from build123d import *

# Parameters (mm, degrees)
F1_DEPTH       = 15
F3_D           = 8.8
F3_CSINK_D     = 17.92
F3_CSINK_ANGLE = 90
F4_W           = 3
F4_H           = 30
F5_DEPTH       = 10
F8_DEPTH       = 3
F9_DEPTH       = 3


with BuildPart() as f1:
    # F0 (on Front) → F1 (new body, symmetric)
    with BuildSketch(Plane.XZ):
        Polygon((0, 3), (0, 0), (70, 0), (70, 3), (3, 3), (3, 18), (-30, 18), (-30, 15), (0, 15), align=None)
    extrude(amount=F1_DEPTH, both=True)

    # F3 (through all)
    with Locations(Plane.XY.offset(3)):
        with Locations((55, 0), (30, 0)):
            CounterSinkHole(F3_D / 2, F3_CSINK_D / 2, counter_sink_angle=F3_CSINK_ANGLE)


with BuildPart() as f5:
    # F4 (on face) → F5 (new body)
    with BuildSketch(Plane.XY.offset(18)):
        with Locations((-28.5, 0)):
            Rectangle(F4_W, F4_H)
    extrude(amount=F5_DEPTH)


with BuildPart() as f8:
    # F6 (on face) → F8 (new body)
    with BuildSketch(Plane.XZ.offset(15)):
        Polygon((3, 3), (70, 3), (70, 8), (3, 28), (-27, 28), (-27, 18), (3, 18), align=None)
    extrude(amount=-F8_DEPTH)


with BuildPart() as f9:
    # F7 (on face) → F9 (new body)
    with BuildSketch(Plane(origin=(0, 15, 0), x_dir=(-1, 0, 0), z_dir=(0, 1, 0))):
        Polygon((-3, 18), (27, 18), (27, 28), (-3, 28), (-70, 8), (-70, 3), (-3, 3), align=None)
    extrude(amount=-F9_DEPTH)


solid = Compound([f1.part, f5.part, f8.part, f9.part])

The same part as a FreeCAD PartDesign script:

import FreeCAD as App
import Part
import Sketcher
Q = App.Units.Quantity

doc = App.newDocument("Part")
params = doc.addObject("Spreadsheet::Sheet", "Params")
for row, (alias, value) in enumerate([
    ("sketch1_width", "70 mm"),
    ("sketch1_width2", "67 mm"),
    ("sketch1_width3", "33 mm"),
    ("sketch1_height", "3 mm"),
    ("sketch1_height2", "15 mm"),
    ("pad1_length", "30 mm"),
    ("sketch2_diameter", "8.8 mm"),
    ("hole_diameter", "8.8 mm"),
    ("hole_csink_diameter", "17.92 mm"),
    ("sketch3_width", "3 mm"),
    ("sketch3_height", "30 mm"),
    ("pad2_length", "10 mm"),
    ("sketch4_width", "67 mm"),
    ("sketch4_width2", "30 mm"),
    ("sketch4_height", "5 mm"),
    ("sketch4_height2", "10 mm"),
    ("sketch4_height3", "15 mm"),
    ("pad3_length", "3 mm"),
    ("sketch5_width", "30 mm"),
    ("sketch5_width2", "67 mm"),
    ("sketch5_height", "10 mm"),
    ("sketch5_height2", "5 mm"),
    ("sketch5_height3", "15 mm"),
    ("pad4_length", "3 mm"),
], start=1):
    params.set(f"A{row}", alias)
    params.set(f"B{row}", "=" + value)
    params.setAlias(f"B{row}", alias)

body = doc.addObject("PartDesign::Body", "Body")

# Sketch on XZ plane
sketch1 = body.newObject("Sketcher::SketchObject", "Sketch")
sketch1.AttachmentSupport = (doc.getObject("XZ_Plane"), [""])
sketch1.MapMode = "FlatFace"
sketch1.addGeometry(Part.LineSegment(App.Vector(0, 0, 0), App.Vector(70, 0, 0)), False)
sketch1.addGeometry(Part.LineSegment(App.Vector(70, 0, 0), App.Vector(70, 3, 0)), False)
sketch1.addGeometry(Part.LineSegment(App.Vector(70, 3, 0), App.Vector(3, 3, 0)), False)
sketch1.addGeometry(Part.LineSegment(App.Vector(3, 3, 0), App.Vector(3, 18, 0)), False)
sketch1.addGeometry(Part.LineSegment(App.Vector(3, 18, 0), App.Vector(-30, 18, 0)), False)
sketch1.addGeometry(Part.LineSegment(App.Vector(-30, 18, 0), App.Vector(-30, 15, 0)), False)
sketch1.addGeometry(Part.LineSegment(App.Vector(-30, 15, 0), App.Vector(0, 15, 0)), False)
sketch1.addGeometry(Part.LineSegment(App.Vector(0, 15, 0), App.Vector(0, 0, 0)), False)
sketch1.addConstraint(Sketcher.Constraint("Coincident", 0, 2, 1, 1))
sketch1.addConstraint(Sketcher.Constraint("Coincident", 1, 2, 2, 1))
sketch1.addConstraint(Sketcher.Constraint("Coincident", 2, 2, 3, 1))
sketch1.addConstraint(Sketcher.Constraint("Coincident", 3, 2, 4, 1))
sketch1.addConstraint(Sketcher.Constraint("Coincident", 4, 2, 5, 1))
sketch1.addConstraint(Sketcher.Constraint("Coincident", 5, 2, 6, 1))
sketch1.addConstraint(Sketcher.Constraint("Coincident", 6, 2, 7, 1))
sketch1.addConstraint(Sketcher.Constraint("Coincident", 7, 2, 0, 1))
sketch1.addConstraint(Sketcher.Constraint("Horizontal", 0))
sketch1.addConstraint(Sketcher.Constraint("Vertical", 1))
sketch1.addConstraint(Sketcher.Constraint("Horizontal", 2))
sketch1.addConstraint(Sketcher.Constraint("Vertical", 3))
sketch1.addConstraint(Sketcher.Constraint("Horizontal", 4))
sketch1.addConstraint(Sketcher.Constraint("Vertical", 5))
sketch1.addConstraint(Sketcher.Constraint("Horizontal", 6))
sketch1.addConstraint(Sketcher.Constraint("Vertical", 7))
sketch1.addConstraint(Sketcher.Constraint("Coincident", 7, 2, -1, 1))
sketch1.addConstraint(Sketcher.Constraint("Equal", 1, 5))
sketch1.addConstraint(Sketcher.Constraint("DistanceX", 0, 1, 0, 2, Q("70 mm")))
sketch1.addConstraint(Sketcher.Constraint("DistanceX", 2, 2, 2, 1, Q("67 mm")))
sketch1.addConstraint(Sketcher.Constraint("DistanceX", 4, 2, 4, 1, Q("33 mm")))
sketch1.addConstraint(Sketcher.Constraint("DistanceY", 1, 1, 1, 2, Q("3 mm")))
sketch1.addConstraint(Sketcher.Constraint("DistanceY", 3, 1, 3, 2, Q("15 mm")))
sketch1.setExpression("Constraints[18]", "Params.sketch1_width")
sketch1.setExpression("Constraints[19]", "Params.sketch1_width2")
sketch1.setExpression("Constraints[20]", "Params.sketch1_width3")
sketch1.setExpression("Constraints[21]", "Params.sketch1_height")
sketch1.setExpression("Constraints[22]", "Params.sketch1_height2")
pad1 = body.newObject("PartDesign::Pad", "Pad")
pad1.Profile = sketch1
pad1.setExpression("Length", "Params.pad1_length")
pad1.Midplane = True

# Sketch on XY plane
sketch2 = body.newObject("Sketcher::SketchObject", "Sketch001")
sketch2.AttachmentSupport = (doc.getObject("XY_Plane"), [""])
sketch2.MapMode = "FlatFace"
sketch2.AttachmentOffset = App.Placement(App.Vector(0, 0, 3), App.Rotation())
sketch2.addGeometry(Part.Circle(App.Vector(55, 0, 0), App.Vector(0, 0, 1), 4.4), False)
sketch2.addGeometry(Part.Circle(App.Vector(30, 0, 0), App.Vector(0, 0, 1), 4.4), False)
sketch2.addConstraint(Sketcher.Constraint("Equal", 0, 1))
sketch2.addConstraint(Sketcher.Constraint("PointOnObject", 0, 3, -1))
sketch2.addConstraint(Sketcher.Constraint("PointOnObject", 1, 3, -1))
sketch2.addConstraint(Sketcher.Constraint("Diameter", 0, Q("8.8 mm")))
sketch2.addConstraint(Sketcher.Constraint("DistanceX", -1, 1, 0, 3, Q("55 mm")))
sketch2.addConstraint(Sketcher.Constraint("DistanceX", -1, 1, 1, 3, Q("30 mm")))
sketch2.setExpression("Constraints[3]", "Params.sketch2_diameter")
doc.recompute()
hole = body.newObject("PartDesign::Hole", "Hole")
hole.Profile = sketch2
hole.ThreadType = "None"
hole.setExpression("Diameter", "Params.hole_diameter")
hole.DepthType = "ThroughAll"
hole.HoleCutType = "Countersink"
hole.setExpression("HoleCutDiameter", "Params.hole_csink_diameter")
hole.HoleCutCountersinkAngle = 90
body2 = doc.addObject("PartDesign::Body", "Body001")

# Sketch on XY plane
sketch3 = body2.newObject("Sketcher::SketchObject", "Sketch002")
sketch3.AttachmentSupport = (doc.getObject("XY_Plane001"), [""])
sketch3.MapMode = "FlatFace"
sketch3.AttachmentOffset = App.Placement(App.Vector(0, 0, 18), App.Rotation())
sketch3.addGeometry(Part.LineSegment(App.Vector(-30, 15, 0), App.Vector(-30, -15, 0)), False)
sketch3.addGeometry(Part.LineSegment(App.Vector(-30, -15, 0), App.Vector(-27, -15, 0)), False)
sketch3.addGeometry(Part.LineSegment(App.Vector(-27, -15, 0), App.Vector(-27, 15, 0)), False)
sketch3.addGeometry(Part.LineSegment(App.Vector(-27, 15, 0), App.Vector(-30, 15, 0)), False)
sketch3.addConstraint(Sketcher.Constraint("Coincident", 0, 2, 1, 1))
sketch3.addConstraint(Sketcher.Constraint("Coincident", 1, 2, 2, 1))
sketch3.addConstraint(Sketcher.Constraint("Coincident", 2, 2, 3, 1))
sketch3.addConstraint(Sketcher.Constraint("Coincident", 3, 2, 0, 1))
sketch3.addConstraint(Sketcher.Constraint("Vertical", 0))
sketch3.addConstraint(Sketcher.Constraint("Horizontal", 1))
sketch3.addConstraint(Sketcher.Constraint("Vertical", 2))
sketch3.addConstraint(Sketcher.Constraint("Horizontal", 3))
sketch3.addConstraint(Sketcher.Constraint("DistanceX", 1, 1, 1, 2, Q("3 mm")))
sketch3.addConstraint(Sketcher.Constraint("DistanceY", 0, 2, 0, 1, Q("30 mm")))
sketch3.addConstraint(Sketcher.Constraint("DistanceX", 0, 2, -1, 1, Q("30 mm")))
sketch3.addConstraint(Sketcher.Constraint("DistanceY", 0, 2, -1, 1, Q("15 mm")))
sketch3.setExpression("Constraints[8]", "Params.sketch3_width")
sketch3.setExpression("Constraints[9]", "Params.sketch3_height")
pad2 = body2.newObject("PartDesign::Pad", "Pad001")
pad2.Profile = sketch3
pad2.setExpression("Length", "Params.pad2_length")
body3 = doc.addObject("PartDesign::Body", "Body002")

# Sketch on XZ plane
sketch4 = body3.newObject("Sketcher::SketchObject", "Sketch003")
sketch4.AttachmentSupport = (doc.getObject("XZ_Plane002"), [""])
sketch4.MapMode = "FlatFace"
sketch4.AttachmentOffset = App.Placement(App.Vector(0, 0, 15), App.Rotation())
sketch4.addGeometry(Part.LineSegment(App.Vector(3, 3, 0), App.Vector(70, 3, 0)), False)
sketch4.addGeometry(Part.LineSegment(App.Vector(70, 3, 0), App.Vector(70, 8, 0)), False)
sketch4.addGeometry(Part.LineSegment(App.Vector(70, 8, 0), App.Vector(3, 28, 0)), False)
sketch4.addGeometry(Part.LineSegment(App.Vector(3, 28, 0), App.Vector(-27, 28, 0)), False)
sketch4.addGeometry(Part.LineSegment(App.Vector(-27, 28, 0), App.Vector(-27, 18, 0)), False)
sketch4.addGeometry(Part.LineSegment(App.Vector(-27, 18, 0), App.Vector(3, 18, 0)), False)
sketch4.addGeometry(Part.LineSegment(App.Vector(3, 18, 0), App.Vector(3, 3, 0)), False)
sketch4.addConstraint(Sketcher.Constraint("Coincident", 0, 2, 1, 1))
sketch4.addConstraint(Sketcher.Constraint("Coincident", 1, 2, 2, 1))
sketch4.addConstraint(Sketcher.Constraint("Coincident", 2, 2, 3, 1))
sketch4.addConstraint(Sketcher.Constraint("Coincident", 3, 2, 4, 1))
sketch4.addConstraint(Sketcher.Constraint("Coincident", 4, 2, 5, 1))
sketch4.addConstraint(Sketcher.Constraint("Coincident", 5, 2, 6, 1))
sketch4.addConstraint(Sketcher.Constraint("Coincident", 6, 2, 0, 1))
sketch4.addConstraint(Sketcher.Constraint("Horizontal", 0))
sketch4.addConstraint(Sketcher.Constraint("Vertical", 1))
sketch4.addConstraint(Sketcher.Constraint("Horizontal", 3))
sketch4.addConstraint(Sketcher.Constraint("Vertical", 4))
sketch4.addConstraint(Sketcher.Constraint("Horizontal", 5))
sketch4.addConstraint(Sketcher.Constraint("Vertical", 6))
sketch4.addConstraint(Sketcher.Constraint("Vertical", 2, 2, 5, 2))
sketch4.addConstraint(Sketcher.Constraint("DistanceX", 0, 1, 0, 2, Q("67 mm")))
sketch4.addConstraint(Sketcher.Constraint("DistanceX", 3, 2, 3, 1, Q("30 mm")))
sketch4.addConstraint(Sketcher.Constraint("DistanceY", 1, 1, 1, 2, Q("5 mm")))
sketch4.addConstraint(Sketcher.Constraint("DistanceY", 4, 2, 4, 1, Q("10 mm")))
sketch4.addConstraint(Sketcher.Constraint("DistanceY", 6, 2, 6, 1, Q("15 mm")))
sketch4.addConstraint(Sketcher.Constraint("DistanceX", -1, 1, 0, 2, Q("70 mm")))
sketch4.addConstraint(Sketcher.Constraint("DistanceY", -1, 1, 0, 2, Q("3 mm")))
sketch4.setExpression("Constraints[14]", "Params.sketch4_width")
sketch4.setExpression("Constraints[15]", "Params.sketch4_width2")
sketch4.setExpression("Constraints[16]", "Params.sketch4_height")
sketch4.setExpression("Constraints[17]", "Params.sketch4_height2")
sketch4.setExpression("Constraints[18]", "Params.sketch4_height3")
pad3 = body3.newObject("PartDesign::Pad", "Pad002")
pad3.Profile = sketch4
pad3.setExpression("Length", "Params.pad3_length")
pad3.Reversed = True
body4 = doc.addObject("PartDesign::Body", "Body003")

# Sketch on XZ plane
sketch5 = body4.newObject("Sketcher::SketchObject", "Sketch004")
sketch5.AttachmentSupport = (doc.getObject("XZ_Plane003"), [""])
sketch5.MapMode = "FlatFace"
sketch5.AttachmentOffset = App.Placement(App.Vector(0, 0, -15), App.Rotation())
sketch5.addGeometry(Part.LineSegment(App.Vector(3, 18, 0), App.Vector(-27, 18, 0)), False)
sketch5.addGeometry(Part.LineSegment(App.Vector(-27, 18, 0), App.Vector(-27, 28, 0)), False)
sketch5.addGeometry(Part.LineSegment(App.Vector(-27, 28, 0), App.Vector(3, 28, 0)), False)
sketch5.addGeometry(Part.LineSegment(App.Vector(3, 28, 0), App.Vector(70, 8, 0)), False)
sketch5.addGeometry(Part.LineSegment(App.Vector(70, 8, 0), App.Vector(70, 3, 0)), False)
sketch5.addGeometry(Part.LineSegment(App.Vector(70, 3, 0), App.Vector(3, 3, 0)), False)
sketch5.addGeometry(Part.LineSegment(App.Vector(3, 3, 0), App.Vector(3, 18, 0)), False)
sketch5.addConstraint(Sketcher.Constraint("Coincident", 0, 2, 1, 1))
sketch5.addConstraint(Sketcher.Constraint("Coincident", 1, 2, 2, 1))
sketch5.addConstraint(Sketcher.Constraint("Coincident", 2, 2, 3, 1))
sketch5.addConstraint(Sketcher.Constraint("Coincident", 3, 2, 4, 1))
sketch5.addConstraint(Sketcher.Constraint("Coincident", 4, 2, 5, 1))
sketch5.addConstraint(Sketcher.Constraint("Coincident", 5, 2, 6, 1))
sketch5.addConstraint(Sketcher.Constraint("Coincident", 6, 2, 0, 1))
sketch5.addConstraint(Sketcher.Constraint("Horizontal", 0))
sketch5.addConstraint(Sketcher.Constraint("Vertical", 1))
sketch5.addConstraint(Sketcher.Constraint("Horizontal", 2))
sketch5.addConstraint(Sketcher.Constraint("Vertical", 4))
sketch5.addConstraint(Sketcher.Constraint("Horizontal", 5))
sketch5.addConstraint(Sketcher.Constraint("Vertical", 6))
sketch5.addConstraint(Sketcher.Constraint("Vertical", 2, 2, 5, 2))
sketch5.addConstraint(Sketcher.Constraint("DistanceX", 0, 2, 0, 1, Q("30 mm")))
sketch5.addConstraint(Sketcher.Constraint("DistanceX", 5, 2, 5, 1, Q("67 mm")))
sketch5.addConstraint(Sketcher.Constraint("DistanceY", 1, 1, 1, 2, Q("10 mm")))
sketch5.addConstraint(Sketcher.Constraint("DistanceY", 4, 2, 4, 1, Q("5 mm")))
sketch5.addConstraint(Sketcher.Constraint("DistanceY", 6, 1, 6, 2, Q("15 mm")))
sketch5.addConstraint(Sketcher.Constraint("DistanceX", 0, 2, -1, 1, Q("27 mm")))
sketch5.addConstraint(Sketcher.Constraint("DistanceY", -1, 1, 0, 2, Q("18 mm")))
sketch5.setExpression("Constraints[14]", "Params.sketch5_width")
sketch5.setExpression("Constraints[15]", "Params.sketch5_width2")
sketch5.setExpression("Constraints[16]", "Params.sketch5_height")
sketch5.setExpression("Constraints[17]", "Params.sketch5_height2")
sketch5.setExpression("Constraints[18]", "Params.sketch5_height3")
pad4 = body4.newObject("PartDesign::Pad", "Pad003")
pad4.Profile = sketch5
pad4.setExpression("Length", "Params.pad4_length")

doc.recompute()
